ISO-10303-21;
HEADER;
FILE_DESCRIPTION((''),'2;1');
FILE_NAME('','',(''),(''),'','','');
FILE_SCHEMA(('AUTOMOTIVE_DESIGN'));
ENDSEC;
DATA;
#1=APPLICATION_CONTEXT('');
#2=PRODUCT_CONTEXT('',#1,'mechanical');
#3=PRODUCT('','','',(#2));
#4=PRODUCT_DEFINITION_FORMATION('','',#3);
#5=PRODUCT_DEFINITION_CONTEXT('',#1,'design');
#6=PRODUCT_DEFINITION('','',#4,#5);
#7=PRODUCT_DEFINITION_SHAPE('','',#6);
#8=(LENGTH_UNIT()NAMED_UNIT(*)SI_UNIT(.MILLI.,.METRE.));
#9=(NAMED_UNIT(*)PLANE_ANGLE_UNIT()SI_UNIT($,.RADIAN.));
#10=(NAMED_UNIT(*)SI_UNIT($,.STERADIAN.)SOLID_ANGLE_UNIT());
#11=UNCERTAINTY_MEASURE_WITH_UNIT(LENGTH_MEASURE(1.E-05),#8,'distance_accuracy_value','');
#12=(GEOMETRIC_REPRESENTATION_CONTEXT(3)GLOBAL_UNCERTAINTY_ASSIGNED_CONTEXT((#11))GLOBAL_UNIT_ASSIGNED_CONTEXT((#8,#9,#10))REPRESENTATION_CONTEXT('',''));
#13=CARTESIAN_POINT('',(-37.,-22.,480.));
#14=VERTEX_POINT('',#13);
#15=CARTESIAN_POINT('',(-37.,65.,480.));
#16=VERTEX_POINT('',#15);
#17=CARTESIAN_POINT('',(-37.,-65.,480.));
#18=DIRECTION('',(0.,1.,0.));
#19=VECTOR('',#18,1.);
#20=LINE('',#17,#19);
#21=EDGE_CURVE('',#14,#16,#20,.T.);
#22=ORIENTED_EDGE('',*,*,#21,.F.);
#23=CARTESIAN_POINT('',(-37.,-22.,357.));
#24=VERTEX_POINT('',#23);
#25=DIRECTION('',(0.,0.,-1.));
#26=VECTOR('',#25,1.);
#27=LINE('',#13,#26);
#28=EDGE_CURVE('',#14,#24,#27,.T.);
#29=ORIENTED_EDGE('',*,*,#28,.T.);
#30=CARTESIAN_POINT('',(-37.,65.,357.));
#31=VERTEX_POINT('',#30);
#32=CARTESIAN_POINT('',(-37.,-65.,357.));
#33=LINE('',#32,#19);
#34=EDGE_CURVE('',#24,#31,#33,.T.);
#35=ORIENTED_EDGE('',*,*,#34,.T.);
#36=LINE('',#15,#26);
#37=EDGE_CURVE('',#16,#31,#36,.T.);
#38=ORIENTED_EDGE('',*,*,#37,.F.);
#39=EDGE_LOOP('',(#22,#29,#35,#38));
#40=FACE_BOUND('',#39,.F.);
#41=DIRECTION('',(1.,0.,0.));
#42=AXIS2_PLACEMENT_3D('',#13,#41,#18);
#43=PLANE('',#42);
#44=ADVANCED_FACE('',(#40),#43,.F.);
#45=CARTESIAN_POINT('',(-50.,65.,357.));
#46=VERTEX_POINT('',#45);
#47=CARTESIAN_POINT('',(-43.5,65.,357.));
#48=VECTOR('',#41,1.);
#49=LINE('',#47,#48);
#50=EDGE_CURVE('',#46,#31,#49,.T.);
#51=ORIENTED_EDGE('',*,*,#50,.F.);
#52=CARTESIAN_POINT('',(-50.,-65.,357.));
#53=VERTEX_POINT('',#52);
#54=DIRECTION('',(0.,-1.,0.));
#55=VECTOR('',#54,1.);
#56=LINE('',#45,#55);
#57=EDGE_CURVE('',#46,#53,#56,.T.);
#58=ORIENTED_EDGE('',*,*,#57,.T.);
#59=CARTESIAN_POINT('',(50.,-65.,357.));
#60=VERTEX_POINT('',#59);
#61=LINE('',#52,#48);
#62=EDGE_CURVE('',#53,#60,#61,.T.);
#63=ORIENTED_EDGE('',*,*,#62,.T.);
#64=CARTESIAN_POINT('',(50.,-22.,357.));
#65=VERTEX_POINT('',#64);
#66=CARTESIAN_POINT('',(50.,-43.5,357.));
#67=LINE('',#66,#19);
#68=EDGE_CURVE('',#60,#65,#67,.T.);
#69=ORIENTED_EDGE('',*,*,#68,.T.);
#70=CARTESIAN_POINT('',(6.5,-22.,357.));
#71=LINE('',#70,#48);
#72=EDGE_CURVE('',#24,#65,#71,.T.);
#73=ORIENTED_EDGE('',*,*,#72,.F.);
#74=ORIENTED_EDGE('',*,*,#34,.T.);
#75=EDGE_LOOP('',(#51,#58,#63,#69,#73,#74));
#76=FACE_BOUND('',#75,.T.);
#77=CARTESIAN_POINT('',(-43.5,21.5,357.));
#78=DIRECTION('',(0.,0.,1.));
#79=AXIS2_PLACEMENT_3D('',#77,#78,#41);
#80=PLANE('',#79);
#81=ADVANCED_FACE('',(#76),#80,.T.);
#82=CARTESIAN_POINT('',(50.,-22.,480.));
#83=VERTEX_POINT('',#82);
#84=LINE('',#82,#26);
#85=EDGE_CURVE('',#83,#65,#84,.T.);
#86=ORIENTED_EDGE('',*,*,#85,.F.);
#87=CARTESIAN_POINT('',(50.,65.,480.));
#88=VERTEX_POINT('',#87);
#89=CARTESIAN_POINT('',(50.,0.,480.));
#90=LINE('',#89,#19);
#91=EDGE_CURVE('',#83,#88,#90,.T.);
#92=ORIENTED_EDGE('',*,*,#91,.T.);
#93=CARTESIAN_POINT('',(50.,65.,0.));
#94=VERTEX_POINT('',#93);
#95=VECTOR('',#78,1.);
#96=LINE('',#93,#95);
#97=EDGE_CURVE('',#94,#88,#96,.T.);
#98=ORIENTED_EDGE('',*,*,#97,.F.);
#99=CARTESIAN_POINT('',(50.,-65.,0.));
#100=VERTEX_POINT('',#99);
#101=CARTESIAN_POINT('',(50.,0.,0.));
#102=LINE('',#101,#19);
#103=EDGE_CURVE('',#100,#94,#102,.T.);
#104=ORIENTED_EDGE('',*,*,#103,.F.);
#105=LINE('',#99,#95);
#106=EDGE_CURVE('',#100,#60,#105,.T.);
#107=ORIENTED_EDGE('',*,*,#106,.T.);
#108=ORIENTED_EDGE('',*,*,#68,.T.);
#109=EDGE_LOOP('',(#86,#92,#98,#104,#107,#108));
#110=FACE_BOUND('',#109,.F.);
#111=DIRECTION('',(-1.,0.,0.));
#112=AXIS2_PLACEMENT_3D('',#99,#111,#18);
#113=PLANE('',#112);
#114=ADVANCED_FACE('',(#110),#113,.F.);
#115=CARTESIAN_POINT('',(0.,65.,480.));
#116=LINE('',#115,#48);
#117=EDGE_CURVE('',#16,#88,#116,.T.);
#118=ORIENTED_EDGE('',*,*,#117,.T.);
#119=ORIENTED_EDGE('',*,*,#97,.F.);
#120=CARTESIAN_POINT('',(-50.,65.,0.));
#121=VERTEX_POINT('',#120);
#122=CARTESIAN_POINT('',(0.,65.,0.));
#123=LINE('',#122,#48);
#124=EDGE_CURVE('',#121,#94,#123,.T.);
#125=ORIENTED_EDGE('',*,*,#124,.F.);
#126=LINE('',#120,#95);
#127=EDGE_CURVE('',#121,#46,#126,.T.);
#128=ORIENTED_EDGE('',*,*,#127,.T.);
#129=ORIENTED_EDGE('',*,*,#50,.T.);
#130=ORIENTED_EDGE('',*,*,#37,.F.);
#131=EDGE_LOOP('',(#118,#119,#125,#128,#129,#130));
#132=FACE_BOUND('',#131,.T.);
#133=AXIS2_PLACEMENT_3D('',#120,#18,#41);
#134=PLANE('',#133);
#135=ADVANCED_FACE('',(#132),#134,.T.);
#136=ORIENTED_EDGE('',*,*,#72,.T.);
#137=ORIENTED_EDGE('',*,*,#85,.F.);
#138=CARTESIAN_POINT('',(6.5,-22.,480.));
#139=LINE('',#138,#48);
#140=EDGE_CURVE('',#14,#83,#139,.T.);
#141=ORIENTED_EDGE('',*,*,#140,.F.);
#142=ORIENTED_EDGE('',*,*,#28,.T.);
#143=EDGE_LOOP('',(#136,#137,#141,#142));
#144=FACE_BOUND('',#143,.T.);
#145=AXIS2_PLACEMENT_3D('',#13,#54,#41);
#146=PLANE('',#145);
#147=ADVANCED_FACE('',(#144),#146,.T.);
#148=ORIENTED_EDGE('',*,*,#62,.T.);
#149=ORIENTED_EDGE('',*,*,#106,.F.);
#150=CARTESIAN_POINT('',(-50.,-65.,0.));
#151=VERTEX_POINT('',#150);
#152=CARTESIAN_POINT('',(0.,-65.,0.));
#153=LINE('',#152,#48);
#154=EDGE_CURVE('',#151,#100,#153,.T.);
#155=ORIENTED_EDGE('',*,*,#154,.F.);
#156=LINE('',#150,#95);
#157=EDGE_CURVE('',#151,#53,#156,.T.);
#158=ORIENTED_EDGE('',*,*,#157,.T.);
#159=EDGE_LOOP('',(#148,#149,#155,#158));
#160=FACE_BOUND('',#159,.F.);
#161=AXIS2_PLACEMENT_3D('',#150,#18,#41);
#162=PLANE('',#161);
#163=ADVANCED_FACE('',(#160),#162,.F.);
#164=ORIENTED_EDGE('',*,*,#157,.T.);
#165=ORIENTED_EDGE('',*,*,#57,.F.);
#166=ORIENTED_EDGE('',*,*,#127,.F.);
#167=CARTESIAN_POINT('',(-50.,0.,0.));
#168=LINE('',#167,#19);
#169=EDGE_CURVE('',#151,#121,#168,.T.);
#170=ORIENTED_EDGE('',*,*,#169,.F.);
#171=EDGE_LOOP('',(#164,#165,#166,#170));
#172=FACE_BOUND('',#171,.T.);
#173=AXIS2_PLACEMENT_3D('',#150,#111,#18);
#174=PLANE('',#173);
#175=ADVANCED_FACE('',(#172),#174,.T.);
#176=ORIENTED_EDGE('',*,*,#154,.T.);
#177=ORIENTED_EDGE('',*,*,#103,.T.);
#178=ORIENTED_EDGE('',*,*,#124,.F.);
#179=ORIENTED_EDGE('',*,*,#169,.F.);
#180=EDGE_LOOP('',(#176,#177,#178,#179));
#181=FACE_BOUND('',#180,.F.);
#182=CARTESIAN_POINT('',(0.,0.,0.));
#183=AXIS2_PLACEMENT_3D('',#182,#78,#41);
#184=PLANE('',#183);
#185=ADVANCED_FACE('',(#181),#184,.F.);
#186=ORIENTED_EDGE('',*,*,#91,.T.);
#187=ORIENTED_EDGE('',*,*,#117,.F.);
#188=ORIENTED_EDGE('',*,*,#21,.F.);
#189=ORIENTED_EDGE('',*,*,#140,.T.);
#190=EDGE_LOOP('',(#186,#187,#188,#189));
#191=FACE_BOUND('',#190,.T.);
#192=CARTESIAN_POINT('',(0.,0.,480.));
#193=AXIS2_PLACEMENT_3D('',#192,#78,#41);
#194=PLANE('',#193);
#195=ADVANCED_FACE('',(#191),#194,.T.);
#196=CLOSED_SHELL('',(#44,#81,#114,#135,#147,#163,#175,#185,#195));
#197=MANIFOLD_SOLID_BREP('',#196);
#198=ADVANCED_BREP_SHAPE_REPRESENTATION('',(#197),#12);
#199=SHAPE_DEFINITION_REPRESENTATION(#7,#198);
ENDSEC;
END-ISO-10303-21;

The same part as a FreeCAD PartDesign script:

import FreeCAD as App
import Part
import Sketcher
from FreeCAD import Vector


def add_polygon(sketch, points):
    """Adds a closed chain of lines whose ends are joined by coincident constraints."""
    first, n = sketch.GeometryCount, len(points)
    for a, b in zip(points, points[1:] + points[:1]):
        sketch.addGeometry(Part.LineSegment(App.Vector(*a, 0), App.Vector(*b, 0)), False)
    for i in range(n):
        sketch.addConstraint(Sketcher.Constraint("Coincident", first + i, 2, first + (i + 1) % n, 1))

doc = App.newDocument("Part")
body = doc.addObject("PartDesign::Body", "Body")

sketch1 = body.newObject("Sketcher::SketchObject", "Sketch")
sketch1.AttachmentSupport = (doc.getObject("XY_Plane"), [""])
sketch1.MapMode = "FlatFace"
add_polygon(sketch1, [(-50, 65), (-50, -65), (50, -65), (50, 65)])
sketch1.addConstraint([
    Sketcher.Constraint("Vertical", 0),
    Sketcher.Constraint("Horizontal", 1),
    Sketcher.Constraint("Vertical", 2),
    Sketcher.Constraint("Horizontal", 3),
    Sketcher.Constraint("Symmetric", 0, 2, 2, 2, -1, 1),
    Sketcher.Constraint("DistanceX", 1, 1, 1, 2, 100.0),
    Sketcher.Constraint("DistanceY", 0, 2, 0, 1, 130.0),
])
pad1 = body.newObject("PartDesign::Pad", "Pad")
pad1.Profile = sketch1
pad1.Length = 480

sketch2 = body.newObject("Sketcher::SketchObject", "Sketch001")
sketch2.AttachmentSupport = (doc.getObject("XY_Plane"), [""])
sketch2.MapMode = "FlatFace"
sketch2.AttachmentOffset = App.Placement(Vector(0, 0, 480), App.Rotation())
add_polygon(sketch2, [(-50, 65), (-50, -65), (50, -65), (50, -22), (-37, -22), (-37, 65)])
sketch2.addConstraint([
    Sketcher.Constraint("Vertical", 0),
    Sketcher.Constraint("Horizontal", 1),
    Sketcher.Constraint("Vertical", 2),
    Sketcher.Constraint("Horizontal", 3),
    Sketcher.Constraint("Vertical", 4),
    Sketcher.Constraint("Horizontal", 5),
    Sketcher.Constraint("Symmetric", 1, 2, 5, 2, -1, 1),
    Sketcher.Constraint("Equal", 3, 4),
    Sketcher.Constraint("DistanceX", 1, 1, 1, 2, 100.0),
    Sketcher.Constraint("DistanceX", 3, 2, 3, 1, 87.0),
    Sketcher.Constraint("DistanceY", 0, 2, 0, 1, 130.0),
])
pocket1 = body.newObject("PartDesign::Pocket", "Pocket")
pocket1.Profile = sketch2
pocket1.Length = 123

doc.recompute()
